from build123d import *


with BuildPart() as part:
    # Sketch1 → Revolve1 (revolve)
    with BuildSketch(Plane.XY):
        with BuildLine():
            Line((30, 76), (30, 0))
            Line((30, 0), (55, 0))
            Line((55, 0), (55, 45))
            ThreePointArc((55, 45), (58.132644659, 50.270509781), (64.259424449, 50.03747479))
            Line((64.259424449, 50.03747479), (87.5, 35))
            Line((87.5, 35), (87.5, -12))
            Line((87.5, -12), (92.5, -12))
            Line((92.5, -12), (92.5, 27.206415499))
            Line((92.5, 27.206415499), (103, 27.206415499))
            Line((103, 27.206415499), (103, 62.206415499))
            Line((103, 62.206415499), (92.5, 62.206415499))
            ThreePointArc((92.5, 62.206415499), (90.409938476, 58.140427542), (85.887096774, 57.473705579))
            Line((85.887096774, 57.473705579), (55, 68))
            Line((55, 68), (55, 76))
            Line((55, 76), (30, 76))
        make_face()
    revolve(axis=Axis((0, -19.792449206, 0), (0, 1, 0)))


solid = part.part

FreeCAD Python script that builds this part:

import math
import FreeCAD as App
import Part
import Sketcher

V = App.Vector

doc = App.newDocument("Part")
body = doc.addObject("PartDesign::Body", "Body")

# Sketch on XY plane
sketch1 = body.newObject("Sketcher::SketchObject", "Sketch")
sketch1.AttachmentSupport = (doc.getObject("XY_Plane"), [""])
sketch1.MapMode = "FlatFace"
sketch1.addGeometry([
    Part.LineSegment(V(30, 76, 0), V(30, 0, 0)),  # 0
    Part.LineSegment(V(30, 0, 0), V(55, 0, 0)),  # 1
    Part.LineSegment(V(55, 0, 0), V(55, 45, 0)),  # 2
    Part.ArcOfCircle(Part.Circle(V(61, 45, 0), V(0, 0, 1), 6), math.radians(57.095704), math.radians(180)),  # 3
    Part.LineSegment(V(64.259424, 50.037475, 0), V(87.5, 35, 0)),  # 4
    Part.LineSegment(V(87.5, 35, 0), V(87.5, -12, 0)),  # 5
    Part.LineSegment(V(87.5, -12, 0), V(92.5, -12, 0)),  # 6
    Part.LineSegment(V(92.5, -12, 0), V(92.5, 27.206415, 0)),  # 7
    Part.LineSegment(V(92.5, 27.206415, 0), V(103, 27.206415, 0)),  # 8
    Part.LineSegment(V(103, 27.206415, 0), V(103, 62.206415, 0)),  # 9
    Part.LineSegment(V(103, 62.206415, 0), V(92.5, 62.206415, 0)),  # 10
    Part.ArcOfCircle(Part.Circle(V(87.5, 62.206415, 0), V(0, 0, 1), 5), math.radians(-108.819063), math.radians(0)),  # 11
    Part.LineSegment(V(85.887097, 57.473706, 0), V(55, 68, 0)),  # 12
    Part.LineSegment(V(55, 68, 0), V(55, 76, 0)),  # 13
    Part.LineSegment(V(55, 76, 0), V(30, 76, 0)),  # 14
], False)
sketch1.addConstraint([
    Sketcher.Constraint("Coincident", 0, 2, 1, 1),
    Sketcher.Constraint("Coincident", 1, 2, 2, 1),
    Sketcher.Constraint("Tangent", 2, 2, 3, 2),
    Sketcher.Constraint("Tangent", 3, 1, 4, 1),
    Sketcher.Constraint("Coincident", 4, 2, 5, 1),
    Sketcher.Constraint("Coincident", 5, 2, 6, 1),
    Sketcher.Constraint("Coincident", 6, 2, 7, 1),
    Sketcher.Constraint("Coincident", 7, 2, 8, 1),
    Sketcher.Constraint("Coincident", 8, 2, 9, 1),
    Sketcher.Constraint("Coincident", 9, 2, 10, 1),
    Sketcher.Constraint("Coincident", 10, 2, 11, 2),
    Sketcher.Constraint("Tangent", 11, 1, 12, 1),
    Sketcher.Constraint("Coincident", 12, 2, 13, 1),
    Sketcher.Constraint("Coincident", 13, 2, 14, 1),
    Sketcher.Constraint("Coincident", 14, 2, 0, 1),
    Sketcher.Constraint("Vertical", 0),
    Sketcher.Constraint("Horizontal", 1),
    Sketcher.Constraint("Vertical", 2),
    Sketcher.Constraint("Vertical", 5),
    Sketcher.Constraint("Horizontal", 6),
    Sketcher.Constraint("Vertical", 7),
    Sketcher.Constraint("Horizontal", 8),
    Sketcher.Constraint("Vertical", 9),
    Sketcher.Constraint("Horizontal", 10),
    Sketcher.Constraint("Vertical", 13),
    Sketcher.Constraint("Horizontal", 14),
    Sketcher.Constraint("PointOnObject", 0, 2, -1),
    Sketcher.Constraint("Horizontal", 11, 3, 9, 2),
    Sketcher.Constraint("Vertical", 11, 3, 4, 2),
    Sketcher.Constraint("Vertical", 7, 2, 10, 2),
    Sketcher.Constraint("Vertical", 2, 2, 12, 2),
    Sketcher.Constraint("Radius", 3, 6.0),
    Sketcher.Constraint("Radius", 11, 5.0),
    Sketcher.Constraint("DistanceX", 1, 1, 1, 2, 25.0),
    Sketcher.Constraint("DistanceY", 0, 2, 0, 1, 76.0),
    Sketcher.Constraint("DistanceY", 2, 1, 2, 2, 45.0),
    Sketcher.Constraint("DistanceY", 5, 2, 5, 1, 47.0),
    Sketcher.Constraint("DistanceY", 9, 1, 9, 2, 35.0),
    Sketcher.Constraint("DistanceY", 13, 1, 13, 2, 8.0),
    Sketcher.Constraint("DistanceX", 8, 1, 8, 2, 10.5),
    Sketcher.Constraint("DistanceX", -1, 1, 3, 3, 61.0),
    Sketcher.Constraint("DistanceY", -1, 1, 4, 2, 35.0),
    Sketcher.Constraint("DistanceX", -1, 1, 8, 2, 103.0),
    Sketcher.Constraint("DistanceY", 7, 1, 7, 2, 39.206415),
])
revolution = body.newObject("PartDesign::Revolution", "Revolution")
revolution.Profile = sketch1
revolution.ReferenceAxis = (sketch1, ["V_Axis"])
revolution.Angle = 360

doc.recompute()
